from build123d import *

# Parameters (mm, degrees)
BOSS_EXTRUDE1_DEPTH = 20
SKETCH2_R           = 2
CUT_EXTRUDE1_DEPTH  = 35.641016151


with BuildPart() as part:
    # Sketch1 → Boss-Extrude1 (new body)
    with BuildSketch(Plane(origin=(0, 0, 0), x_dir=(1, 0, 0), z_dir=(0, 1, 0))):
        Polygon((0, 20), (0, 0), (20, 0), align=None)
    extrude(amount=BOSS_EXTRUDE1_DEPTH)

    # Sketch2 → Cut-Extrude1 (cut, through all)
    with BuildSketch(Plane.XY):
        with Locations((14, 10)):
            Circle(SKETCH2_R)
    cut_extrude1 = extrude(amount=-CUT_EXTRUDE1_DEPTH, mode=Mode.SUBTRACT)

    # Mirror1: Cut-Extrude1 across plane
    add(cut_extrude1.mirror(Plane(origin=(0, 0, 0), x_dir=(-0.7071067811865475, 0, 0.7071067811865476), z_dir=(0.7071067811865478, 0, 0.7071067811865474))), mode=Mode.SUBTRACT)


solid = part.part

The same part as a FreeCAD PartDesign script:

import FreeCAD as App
import Part
import Sketcher
from FreeCAD import Vector

doc = App.newDocument("Part")
params = doc.addObject("Spreadsheet::Sheet", "Params")
for row, (alias, value) in enumerate([
    ("sketch1_width", "20 mm"),
    ("pad1_length", "20 mm"),
    ("sketch2_diameter", "4 mm"),
], start=1):
    params.set(f"A{row}", alias)
    params.set(f"B{row}", "=" + value)
    params.setAlias(f"B{row}", alias)

body = doc.addObject("PartDesign::Body", "Body")

# Sketch on XZ plane
sketch1 = body.newObject("Sketcher::SketchObject", "Sketch")
sketch1.AttachmentSupport = (doc.getObject("XZ_Plane"), [""])
sketch1.MapMode = "FlatFace"
sketch1.addGeometry(Part.LineSegment(Vector(0, -20, 0), Vector(0, 0, 0)), False)
sketch1.addGeometry(Part.LineSegment(Vector(0, 0, 0), Vector(20, 0, 0)), False)
sketch1.addGeometry(Part.LineSegment(Vector(20, 0, 0), Vector(0, -20, 0)), False)
sketch1.addConstraint(Sketcher.Constraint("Coincident", 0, 2, 1, 1))
sketch1.addConstraint(Sketcher.Constraint("Coincident", 1, 2, 2, 1))
sketch1.addConstraint(Sketcher.Constraint("Coincident", 2, 2, 0, 1))
sketch1.addConstraint(Sketcher.Constraint("Vertical", 0))
sketch1.addConstraint(Sketcher.Constraint("Horizontal", 1))
sketch1.addConstraint(Sketcher.Constraint("Coincident", 0, 2, -1, 1))
sketch1.addConstraint(Sketcher.Constraint("Equal", 1, 0))
sketch1.addConstraint(Sketcher.Constraint("DistanceX", 1, 1, 1, 2, 20.0))
sketch1.setExpression("Constraints[7]", "Params.sketch1_width")
pad1 = body.newObject("PartDesign::Pad", "Pad")
pad1.Profile = sketch1
pad1.setExpression("Length", "Params.pad1_length")
pad1.Reversed = True

# Sketch on XY plane
sketch2 = body.newObject("Sketcher::SketchObject", "Sketch001")
sketch2.AttachmentSupport = (doc.getObject("XY_Plane"), [""])
sketch2.MapMode = "FlatFace"
sketch2.addGeometry(Part.Circle(Vector(14, 10, 0), Vector(0, 0, 1), 2), False)
sketch2.addConstraint(Sketcher.Constraint("Diameter", 0, 4.0))
sketch2.addConstraint(Sketcher.Constraint("DistanceX", -1, 1, 0, 3, 14.0))
sketch2.addConstraint(Sketcher.Constraint("DistanceY", -1, 1, 0, 3, 10.0))
sketch2.setExpression("Constraints[0]", "Params.sketch2_diameter")
pocket1 = body.newObject("PartDesign::Pocket", "Pocket")
pocket1.Profile = sketch2
pocket1.Type = "ThroughAll"
doc.recompute()

datumplane = body.newObject("PartDesign::Plane", "DatumPlane")
datumplane.Placement = App.Placement(Vector(0, 0, 0), App.Rotation(Vector(-0.707106781, 0, 0.707106781), Vector(0, -1, 0), Vector(0.707106781, 0, 0.707106781), "ZXY"))
mirrored = body.newObject("PartDesign::Mirrored", "Mirrored")
mirrored.Originals = [pocket1]
mirrored.MirrorPlane = (datumplane, [""])
body.Tip = mirrored

doc.recompute()
